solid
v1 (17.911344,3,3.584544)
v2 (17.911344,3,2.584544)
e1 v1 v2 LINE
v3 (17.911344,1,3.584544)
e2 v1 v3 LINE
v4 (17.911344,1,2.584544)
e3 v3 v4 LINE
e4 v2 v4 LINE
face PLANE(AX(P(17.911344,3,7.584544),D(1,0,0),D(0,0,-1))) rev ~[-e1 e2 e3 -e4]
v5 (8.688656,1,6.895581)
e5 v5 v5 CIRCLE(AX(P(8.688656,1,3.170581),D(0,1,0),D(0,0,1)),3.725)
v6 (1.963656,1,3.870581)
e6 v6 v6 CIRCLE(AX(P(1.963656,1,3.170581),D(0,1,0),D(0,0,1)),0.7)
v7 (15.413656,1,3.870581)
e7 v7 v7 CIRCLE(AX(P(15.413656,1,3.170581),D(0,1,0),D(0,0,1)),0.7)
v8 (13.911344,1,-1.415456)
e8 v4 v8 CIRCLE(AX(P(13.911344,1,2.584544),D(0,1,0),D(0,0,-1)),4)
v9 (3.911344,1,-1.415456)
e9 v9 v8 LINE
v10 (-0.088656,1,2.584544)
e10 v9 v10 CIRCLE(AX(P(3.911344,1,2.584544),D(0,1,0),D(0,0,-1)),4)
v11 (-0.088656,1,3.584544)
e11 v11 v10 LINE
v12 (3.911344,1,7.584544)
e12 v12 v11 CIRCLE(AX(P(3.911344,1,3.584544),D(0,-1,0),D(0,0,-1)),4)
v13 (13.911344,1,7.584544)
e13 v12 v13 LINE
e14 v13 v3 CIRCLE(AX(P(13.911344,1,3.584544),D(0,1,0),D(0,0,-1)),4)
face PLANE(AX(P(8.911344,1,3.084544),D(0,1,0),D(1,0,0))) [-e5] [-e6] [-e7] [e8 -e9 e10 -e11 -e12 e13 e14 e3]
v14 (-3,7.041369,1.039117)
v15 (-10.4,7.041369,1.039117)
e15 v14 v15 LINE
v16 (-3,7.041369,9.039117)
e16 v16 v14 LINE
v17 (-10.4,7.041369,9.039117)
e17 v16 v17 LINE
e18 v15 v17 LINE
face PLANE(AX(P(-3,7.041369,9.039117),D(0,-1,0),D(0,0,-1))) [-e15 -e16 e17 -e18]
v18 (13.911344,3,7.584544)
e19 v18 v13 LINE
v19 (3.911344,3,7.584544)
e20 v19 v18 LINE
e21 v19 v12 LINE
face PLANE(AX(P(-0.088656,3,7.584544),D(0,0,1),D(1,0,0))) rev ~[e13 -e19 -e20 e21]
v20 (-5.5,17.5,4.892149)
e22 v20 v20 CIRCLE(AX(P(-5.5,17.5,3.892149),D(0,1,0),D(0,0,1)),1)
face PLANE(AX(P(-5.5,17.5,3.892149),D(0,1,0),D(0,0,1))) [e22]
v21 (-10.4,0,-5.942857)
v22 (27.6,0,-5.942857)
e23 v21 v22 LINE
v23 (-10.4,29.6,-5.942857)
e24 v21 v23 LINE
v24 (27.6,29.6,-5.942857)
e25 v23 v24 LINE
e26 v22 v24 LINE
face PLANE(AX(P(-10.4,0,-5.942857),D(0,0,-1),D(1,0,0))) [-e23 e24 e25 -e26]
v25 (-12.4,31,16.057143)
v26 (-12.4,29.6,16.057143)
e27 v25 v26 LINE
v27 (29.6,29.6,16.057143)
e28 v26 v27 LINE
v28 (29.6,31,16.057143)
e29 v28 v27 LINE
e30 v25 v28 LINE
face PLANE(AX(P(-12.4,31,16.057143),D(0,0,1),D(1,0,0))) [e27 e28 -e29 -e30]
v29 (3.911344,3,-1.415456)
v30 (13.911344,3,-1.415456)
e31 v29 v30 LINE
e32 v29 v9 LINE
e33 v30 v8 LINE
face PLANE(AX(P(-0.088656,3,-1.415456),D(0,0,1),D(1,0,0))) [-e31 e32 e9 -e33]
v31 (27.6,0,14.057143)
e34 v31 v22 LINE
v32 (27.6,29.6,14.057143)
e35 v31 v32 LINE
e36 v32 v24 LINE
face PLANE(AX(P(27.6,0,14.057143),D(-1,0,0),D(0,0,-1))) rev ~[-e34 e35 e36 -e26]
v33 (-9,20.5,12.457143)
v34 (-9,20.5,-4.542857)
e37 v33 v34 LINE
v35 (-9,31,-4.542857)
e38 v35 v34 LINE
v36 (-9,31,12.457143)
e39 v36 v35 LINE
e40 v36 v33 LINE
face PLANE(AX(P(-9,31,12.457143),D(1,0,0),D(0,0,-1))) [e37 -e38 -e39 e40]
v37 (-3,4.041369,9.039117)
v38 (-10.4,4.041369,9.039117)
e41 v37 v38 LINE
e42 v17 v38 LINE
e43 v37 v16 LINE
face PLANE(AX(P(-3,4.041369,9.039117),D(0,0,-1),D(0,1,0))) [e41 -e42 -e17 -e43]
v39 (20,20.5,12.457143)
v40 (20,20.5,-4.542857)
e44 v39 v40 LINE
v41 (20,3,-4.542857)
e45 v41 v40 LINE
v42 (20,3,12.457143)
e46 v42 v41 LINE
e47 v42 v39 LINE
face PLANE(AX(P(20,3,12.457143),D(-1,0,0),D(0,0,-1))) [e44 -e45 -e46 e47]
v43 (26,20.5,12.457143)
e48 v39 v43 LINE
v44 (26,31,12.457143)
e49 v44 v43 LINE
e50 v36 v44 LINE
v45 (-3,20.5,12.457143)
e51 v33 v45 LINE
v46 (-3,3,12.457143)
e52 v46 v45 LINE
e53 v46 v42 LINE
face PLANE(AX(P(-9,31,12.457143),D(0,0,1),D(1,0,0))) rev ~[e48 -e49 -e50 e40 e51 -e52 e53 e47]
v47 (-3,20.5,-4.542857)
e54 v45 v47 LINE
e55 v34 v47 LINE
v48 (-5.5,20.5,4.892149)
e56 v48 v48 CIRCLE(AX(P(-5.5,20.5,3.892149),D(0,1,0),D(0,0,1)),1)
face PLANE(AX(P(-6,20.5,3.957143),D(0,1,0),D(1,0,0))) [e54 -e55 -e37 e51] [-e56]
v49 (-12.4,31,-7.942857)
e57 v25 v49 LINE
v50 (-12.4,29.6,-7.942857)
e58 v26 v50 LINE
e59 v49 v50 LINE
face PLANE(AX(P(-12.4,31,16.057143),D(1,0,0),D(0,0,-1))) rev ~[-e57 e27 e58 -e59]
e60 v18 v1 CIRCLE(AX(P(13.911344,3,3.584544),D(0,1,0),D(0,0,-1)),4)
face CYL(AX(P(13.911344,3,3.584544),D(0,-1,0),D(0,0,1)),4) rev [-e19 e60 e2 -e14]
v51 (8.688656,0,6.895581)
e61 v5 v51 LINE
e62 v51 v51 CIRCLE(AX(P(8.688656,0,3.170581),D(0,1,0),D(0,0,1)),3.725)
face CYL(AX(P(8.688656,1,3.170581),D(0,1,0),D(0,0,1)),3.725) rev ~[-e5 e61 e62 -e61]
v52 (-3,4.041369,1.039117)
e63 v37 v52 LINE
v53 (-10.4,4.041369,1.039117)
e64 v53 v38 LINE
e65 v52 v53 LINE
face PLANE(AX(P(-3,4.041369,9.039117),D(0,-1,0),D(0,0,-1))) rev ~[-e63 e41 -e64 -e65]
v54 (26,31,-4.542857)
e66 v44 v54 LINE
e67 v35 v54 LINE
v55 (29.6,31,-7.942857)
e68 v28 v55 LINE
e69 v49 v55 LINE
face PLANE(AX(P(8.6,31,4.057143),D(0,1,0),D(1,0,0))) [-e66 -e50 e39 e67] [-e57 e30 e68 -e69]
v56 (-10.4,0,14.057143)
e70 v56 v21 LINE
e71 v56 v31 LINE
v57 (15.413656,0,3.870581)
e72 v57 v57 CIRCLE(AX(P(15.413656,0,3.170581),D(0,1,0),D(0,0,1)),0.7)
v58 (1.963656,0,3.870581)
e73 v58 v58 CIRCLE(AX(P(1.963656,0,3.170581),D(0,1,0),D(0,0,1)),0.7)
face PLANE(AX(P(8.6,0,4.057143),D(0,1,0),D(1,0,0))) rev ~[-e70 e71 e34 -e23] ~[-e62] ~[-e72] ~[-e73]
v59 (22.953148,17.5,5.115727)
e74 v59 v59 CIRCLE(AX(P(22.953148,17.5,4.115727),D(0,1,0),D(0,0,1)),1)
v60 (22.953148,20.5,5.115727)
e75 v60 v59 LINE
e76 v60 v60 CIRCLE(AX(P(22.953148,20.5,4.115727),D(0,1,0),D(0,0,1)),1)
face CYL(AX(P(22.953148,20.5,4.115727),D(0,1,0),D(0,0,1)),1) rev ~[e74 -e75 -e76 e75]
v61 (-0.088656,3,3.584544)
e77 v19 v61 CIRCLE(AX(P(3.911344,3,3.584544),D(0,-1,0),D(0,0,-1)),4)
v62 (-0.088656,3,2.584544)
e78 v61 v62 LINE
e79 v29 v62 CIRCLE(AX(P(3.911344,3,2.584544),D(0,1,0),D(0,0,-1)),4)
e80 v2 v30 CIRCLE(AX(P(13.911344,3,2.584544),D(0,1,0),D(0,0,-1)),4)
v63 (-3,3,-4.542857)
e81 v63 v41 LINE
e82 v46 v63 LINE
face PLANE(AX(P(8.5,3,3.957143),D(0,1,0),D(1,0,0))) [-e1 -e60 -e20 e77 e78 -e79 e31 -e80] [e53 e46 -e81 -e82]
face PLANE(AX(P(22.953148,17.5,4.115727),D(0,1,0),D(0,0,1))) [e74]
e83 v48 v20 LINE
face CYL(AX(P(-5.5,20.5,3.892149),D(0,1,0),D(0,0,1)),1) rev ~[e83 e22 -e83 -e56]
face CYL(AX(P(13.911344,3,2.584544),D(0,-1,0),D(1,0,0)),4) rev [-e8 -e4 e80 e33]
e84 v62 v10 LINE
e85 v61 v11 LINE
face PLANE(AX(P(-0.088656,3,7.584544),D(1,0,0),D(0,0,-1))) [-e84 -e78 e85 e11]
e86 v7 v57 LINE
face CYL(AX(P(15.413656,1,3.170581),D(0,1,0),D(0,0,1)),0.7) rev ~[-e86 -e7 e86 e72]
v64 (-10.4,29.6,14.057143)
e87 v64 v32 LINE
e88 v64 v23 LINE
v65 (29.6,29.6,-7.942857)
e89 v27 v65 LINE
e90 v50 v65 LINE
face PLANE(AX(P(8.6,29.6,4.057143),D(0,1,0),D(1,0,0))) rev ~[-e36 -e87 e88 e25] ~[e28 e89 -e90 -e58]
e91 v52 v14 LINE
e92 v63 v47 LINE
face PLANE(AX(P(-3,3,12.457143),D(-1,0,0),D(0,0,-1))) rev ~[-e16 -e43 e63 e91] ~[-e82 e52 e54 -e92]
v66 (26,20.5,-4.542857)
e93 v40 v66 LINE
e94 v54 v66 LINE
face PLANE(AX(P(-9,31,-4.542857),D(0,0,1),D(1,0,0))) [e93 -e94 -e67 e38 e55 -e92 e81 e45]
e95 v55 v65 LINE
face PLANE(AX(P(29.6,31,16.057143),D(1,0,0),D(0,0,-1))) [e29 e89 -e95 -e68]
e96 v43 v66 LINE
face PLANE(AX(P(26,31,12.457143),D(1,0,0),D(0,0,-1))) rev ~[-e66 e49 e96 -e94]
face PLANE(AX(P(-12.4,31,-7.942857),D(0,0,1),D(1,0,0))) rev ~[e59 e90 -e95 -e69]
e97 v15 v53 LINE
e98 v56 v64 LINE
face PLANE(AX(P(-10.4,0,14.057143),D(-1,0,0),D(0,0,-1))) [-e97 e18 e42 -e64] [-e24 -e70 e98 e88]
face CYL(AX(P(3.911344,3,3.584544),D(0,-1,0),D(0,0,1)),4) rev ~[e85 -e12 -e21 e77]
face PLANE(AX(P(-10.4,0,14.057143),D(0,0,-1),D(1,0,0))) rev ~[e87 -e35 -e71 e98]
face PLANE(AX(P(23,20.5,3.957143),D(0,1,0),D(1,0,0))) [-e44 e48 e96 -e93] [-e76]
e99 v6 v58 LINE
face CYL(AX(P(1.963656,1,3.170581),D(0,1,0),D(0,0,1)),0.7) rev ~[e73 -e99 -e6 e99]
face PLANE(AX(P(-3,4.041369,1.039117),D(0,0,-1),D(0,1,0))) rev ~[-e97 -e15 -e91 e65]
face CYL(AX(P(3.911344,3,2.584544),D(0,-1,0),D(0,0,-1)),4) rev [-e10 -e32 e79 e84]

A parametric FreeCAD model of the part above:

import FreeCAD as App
import Part
import Sketcher
from FreeCAD import Vector
Q = App.Units.Quantity


def edges_at(feature, points):
    """Names of the edges that pass closest to the given points."""
    edges = feature.Shape.Edges
    near = lambda p: min(range(len(edges)), key=lambda i: edges[i].distToShape(Part.Vertex(*p))[0])
    return sorted({f"Edge{near(p) + 1}" for p in points})

doc = App.newDocument("Part")
body = doc.addObject("PartDesign::Body", "Body")

# Sketch on XZ plane
sketch1 = body.newObject("Sketcher::SketchObject", "Sketch")
sketch1.AttachmentSupport = (doc.getObject("XZ_Plane"), [""])
sketch1.MapMode = "FlatFace"
sketch1.addGeometry([
    Part.LineSegment(Vector(-10.4, -5.942857, 0), Vector(-10.4, 14.057143, 0)),
    Part.LineSegment(Vector(-10.4, 14.057143, 0), Vector(27.6, 14.057143, 0)),
    Part.LineSegment(Vector(27.6, 14.057143, 0), Vector(27.6, -5.942857, 0)),
    Part.LineSegment(Vector(27.6, -5.942857, 0), Vector(-10.4, -5.942857, 0)),
], False)
sketch1.addConstraint([
    Sketcher.Constraint("Coincident", 0, 2, 1, 1),
    Sketcher.Constraint("Coincident", 1, 2, 2, 1),
    Sketcher.Constraint("Coincident", 2, 2, 3, 1),
    Sketcher.Constraint("Coincident", 3, 2, 0, 1),
    Sketcher.Constraint("Vertical", 0),
    Sketcher.Constraint("Horizontal", 1),
    Sketcher.Constraint("Vertical", 2),
    Sketcher.Constraint("Horizontal", 3),
    Sketcher.Constraint("DistanceX", 1, 1, 1, 2, Q("38 mm")),
    Sketcher.Constraint("DistanceY", 0, 1, 0, 2, Q("20 mm")),
    Sketcher.Constraint("DistanceX", 0, 2, -1, 1, Q("10.4 mm")),
    Sketcher.Constraint("DistanceY", -1, 1, 0, 2, Q("14.057143 mm")),
])
pad1 = body.newObject("PartDesign::Pad", "Pad")
pad1.Profile = sketch1
pad1.Length = 31
pad1.Reversed = True

# Sketch on XZ plane
sketch2 = body.newObject("Sketcher::SketchObject", "Sketch001")
sketch2.AttachmentSupport = (doc.getObject("XZ_Plane"), [""])
sketch2.MapMode = "FlatFace"
sketch2.AttachmentOffset = App.Placement(Vector(0, 0, -31), App.Rotation())
sketch2.addGeometry([
    Part.LineSegment(Vector(-9, -4.542857, 0), Vector(-9, 12.457143, 0)),
    Part.LineSegment(Vector(-9, 12.457143, 0), Vector(26, 12.457143, 0)),
    Part.LineSegment(Vector(26, 12.457143, 0), Vector(26, -4.542857, 0)),
    Part.LineSegment(Vector(26, -4.542857, 0), Vector(-9, -4.542857, 0)),
], False)
sketch2.addConstraint([
    Sketcher.Constraint("Coincident", 0, 2, 1, 1),
    Sketcher.Constraint("Coincident", 1, 2, 2, 1),
    Sketcher.Constraint("Coincident", 2, 2, 3, 1),
    Sketcher.Constraint("Coincident", 3, 2, 0, 1),
    Sketcher.Constraint("Vertical", 0),
    Sketcher.Constraint("Horizontal", 1),
    Sketcher.Constraint("Vertical", 2),
    Sketcher.Constraint("Horizontal", 3),
    Sketcher.Constraint("DistanceX", 1, 1, 1, 2, Q("35 mm")),
    Sketcher.Constraint("DistanceY", 0, 1, 0, 2, Q("17 mm")),
    Sketcher.Constraint("DistanceX", 0, 2, -1, 1, Q("9 mm")),
    Sketcher.Constraint("DistanceY", -1, 1, 0, 2, Q("12.457143 mm")),
])
pocket1 = body.newObject("PartDesign::Pocket", "Pocket")
pocket1.Profile = sketch2
pocket1.Length = 28
pocket1.Reversed = True

# Sketch on XZ plane
sketch3 = body.newObject("Sketcher::SketchObject", "Sketch002")
sketch3.AttachmentSupport = (doc.getObject("XZ_Plane"), [""])
sketch3.MapMode = "FlatFace"
sketch3.AttachmentOffset = App.Placement(Vector(0, 0, -3), App.Rotation())
sketch3.addGeometry([
    Part.LineSegment(Vector(-9, -4.542857, 0), Vector(-9, 12.457143, 0)),  # 0
    Part.LineSegment(Vector(-9, 12.457143, 0), Vector(-3, 12.457143, 0)),  # 1
    Part.LineSegment(Vector(-3, 12.457143, 0), Vector(-3, -4.542857, 0)),  # 2
    Part.LineSegment(Vector(-3, -4.542857, 0), Vector(-9, -4.542857, 0)),  # 3
    Part.LineSegment(Vector(20, -4.542857, 0), Vector(20, 12.457143, 0)),  # 4
    Part.LineSegment(Vector(20, 12.457143, 0), Vector(26, 12.457143, 0)),  # 5
    Part.LineSegment(Vector(26, 12.457143, 0), Vector(26, -4.542857, 0)),  # 6
    Part.LineSegment(Vector(26, -4.542857, 0), Vector(20, -4.542857, 0)),  # 7
], False)
sketch3.addConstraint([
    Sketcher.Constraint("Coincident", 0, 2, 1, 1),
    Sketcher.Constraint("Coincident", 1, 2, 2, 1),
    Sketcher.Constraint("Coincident", 2, 2, 3, 1),
    Sketcher.Constraint("Coincident", 3, 2, 0, 1),
    Sketcher.Constraint("Coincident", 4, 2, 5, 1),
    Sketcher.Constraint("Coincident", 5, 2, 6, 1),
    Sketcher.Constraint("Coincident", 6, 2, 7, 1),
    Sketcher.Constraint("Coincident", 7, 2, 4, 1),
    Sketcher.Constraint("Vertical", 0),
    Sketcher.Constraint("Horizontal", 1),
    Sketcher.Constraint("Vertical", 2),
    Sketcher.Constraint("Horizontal", 3),
    Sketcher.Constraint("Vertical", 4),
    Sketcher.Constraint("Horizontal", 5),
    Sketcher.Constraint("Vertical", 6),
    Sketcher.Constraint("Horizontal", 7),
    Sketcher.Constraint("Horizontal", 1, 2, 4, 2),
    Sketcher.Constraint("Horizontal", 3, 2, 6, 2),
    Sketcher.Constraint("Equal", 3, 5),
    Sketcher.Constraint("DistanceX", 1, 1, 1, 2, Q("6 mm")),
    Sketcher.Constraint("DistanceY", 0, 1, 0, 2, Q("17 mm")),
    Sketcher.Constraint("DistanceX", 0, 2, -1, 1, Q("9 mm")),
    Sketcher.Constraint("DistanceX", -1, 1, 4, 2, Q("20 mm")),
    Sketcher.Constraint("DistanceY", -1, 1, 0, 2, Q("12.457143 mm")),
])
pad2 = body.newObject("PartDesign::Pad", "Pad001")
pad2.Profile = sketch3
pad2.Length = 17.5
pad2.Reversed = True

# Sketch on XZ plane
sketch4 = body.newObject("Sketcher::SketchObject", "Sketch003")
sketch4.AttachmentSupport = (doc.getObject("XZ_Plane"), [""])
sketch4.MapMode = "FlatFace"
sketch4.AttachmentOffset = App.Placement(Vector(0, 0, -31), App.Rotation())
sketch4.addGeometry([
    Part.LineSegment(Vector(-12.4, -7.942857, 0), Vector(-12.4, 16.057143, 0)),  # 0
    Part.LineSegment(Vector(-12.4, 16.057143, 0), Vector(29.6, 16.057143, 0)),  # 1
    Part.LineSegment(Vector(29.6, 16.057143, 0), Vector(29.6, -7.942857, 0)),  # 2
    Part.LineSegment(Vector(29.6, -7.942857, 0), Vector(-12.4, -7.942857, 0)),  # 3
    Part.LineSegment(Vector(27.6, 14.057143, 0), Vector(-10.4, 14.057143, 0)),  # 4
    Part.LineSegment(Vector(-10.4, 14.057143, 0), Vector(-10.4, -5.942857, 0)),  # 5
    Part.LineSegment(Vector(-10.4, -5.942857, 0), Vector(27.6, -5.942857, 0)),  # 6
    Part.LineSegment(Vector(27.6, -5.942857, 0), Vector(27.6, 14.057143, 0)),  # 7
], False)
sketch4.addConstraint([
    Sketcher.Constraint("Coincident", 0, 2, 1, 1),
    Sketcher.Constraint("Coincident", 1, 2, 2, 1),
    Sketcher.Constraint("Coincident", 2, 2, 3, 1),
    Sketcher.Constraint("Coincident", 3, 2, 0, 1),
    Sketcher.Constraint("Coincident", 4, 2, 5, 1),
    Sketcher.Constraint("Coincident", 5, 2, 6, 1),
    Sketcher.Constraint("Coincident", 6, 2, 7, 1),
    Sketcher.Constraint("Coincident", 7, 2, 4, 1),
    Sketcher.Constraint("Vertical", 0),
    Sketcher.Constraint("Horizontal", 1),
    Sketcher.Constraint("Vertical", 2),
    Sketcher.Constraint("Horizontal", 3),
    Sketcher.Constraint("Horizontal", 4),
    Sketcher.Constraint("Vertical", 5),
    Sketcher.Constraint("Horizontal", 6),
    Sketcher.Constraint("Vertical", 7),
    Sketcher.Constraint("DistanceX", 1, 1, 1, 2, Q("42 mm")),
    Sketcher.Constraint("DistanceX", 4, 2, 4, 1, Q("38 mm")),
    Sketcher.Constraint("DistanceY", 0, 1, 0, 2, Q("24 mm")),
    Sketcher.Constraint("DistanceY", 5, 2, 5, 1, Q("20 mm")),
    Sketcher.Constraint("DistanceX", 0, 2, 4, 2, Q("2 mm")),
    Sketcher.Constraint("DistanceY", 4, 2, 0, 2, Q("2 mm")),
    Sketcher.Constraint("DistanceX", 0, 2, -1, 1, Q("12.4 mm")),
    Sketcher.Constraint("DistanceY", -1, 1, 0, 2, Q("16.057143 mm")),
])
pad3 = body.newObject("PartDesign::Pad", "Pad002")
pad3.Profile = sketch4
pad3.Length = 1.4

# Sketch on XZ plane
sketch5 = body.newObject("Sketcher::SketchObject", "Sketch004")
sketch5.AttachmentSupport = (doc.getObject("XZ_Plane"), [""])
sketch5.MapMode = "FlatFace"
sketch5.AttachmentOffset = App.Placement(Vector(0, 0, -20.5), App.Rotation())
sketch5.addGeometry(Part.Circle(Vector(-5.5, 3.892149, 0), Vector(0, 0, 1), 1), False)
sketch5.addConstraint([
    Sketcher.Constraint("Diameter", 0, Q("2 mm")),
    Sketcher.Constraint("DistanceX", 0, 3, -1, 1, Q("5.5 mm")),
    Sketcher.Constraint("DistanceY", -1, 1, 0, 3, Q("3.892149 mm")),
])
pocket2 = body.newObject("PartDesign::Pocket", "Pocket001")
pocket2.Profile = sketch5
pocket2.Length = 3
pocket2.Reversed = True

# Sketch on XZ plane
sketch6 = body.newObject("Sketcher::SketchObject", "Sketch005")
sketch6.AttachmentSupport = (doc.getObject("XZ_Plane"), [""])
sketch6.MapMode = "FlatFace"
sketch6.AttachmentOffset = App.Placement(Vector(0, 0, -20.5), App.Rotation())
sketch6.addGeometry(Part.Circle(Vector(22.953148, 4.115727, 0), Vector(0, 0, 1), 1), False)
sketch6.addConstraint([
    Sketcher.Constraint("Diameter", 0, Q("2 mm")),
    Sketcher.Constraint("DistanceX", -1, 1, 0, 3, Q("22.953148 mm")),
    Sketcher.Constraint("DistanceY", -1, 1, 0, 3, Q("4.115727 mm")),
])
pocket3 = body.newObject("PartDesign::Pocket", "Pocket002")
pocket3.Profile = sketch6
pocket3.Length = 3
pocket3.Reversed = True

# Sketch on YZ plane
sketch7 = body.newObject("Sketcher::SketchObject", "Sketch006")
sketch7.AttachmentSupport = (doc.getObject("YZ_Plane"), [""])
sketch7.MapMode = "FlatFace"
sketch7.AttachmentOffset = App.Placement(Vector(0, 0, -3), App.Rotation())
sketch7.addGeometry([
    Part.LineSegment(Vector(7.041369, 9.039117, 0), Vector(4.041369, 9.039117, 0)),
    Part.LineSegment(Vector(4.041369, 9.039117, 0), Vector(4.041369, 1.039117, 0)),
    Part.LineSegment(Vector(4.041369, 1.039117, 0), Vector(7.041369, 1.039117, 0)),
    Part.LineSegment(Vector(7.041369, 1.039117, 0), Vector(7.041369, 9.039117, 0)),
], False)
sketch7.addConstraint([
    Sketcher.Constraint("Coincident", 0, 2, 1, 1),
    Sketcher.Constraint("Coincident", 1, 2, 2, 1),
    Sketcher.Constraint("Coincident", 2, 2, 3, 1),
    Sketcher.Constraint("Coincident", 3, 2, 0, 1),
    Sketcher.Constraint("Horizontal", 0),
    Sketcher.Constraint("Vertical", 1),
    Sketcher.Constraint("Horizontal", 2),
    Sketcher.Constraint("Vertical", 3),
    Sketcher.Constraint("DistanceX", 0, 2, 0, 1, Q("3 mm")),
    Sketcher.Constraint("DistanceY", 1, 2, 1, 1, Q("8 mm")),
    Sketcher.Constraint("DistanceX", -1, 1, 0, 2, Q("4.041369 mm")),
    Sketcher.Constraint("DistanceY", -1, 1, 0, 2, Q("9.039117 mm")),
])
pocket4 = body.newObject("PartDesign::Pocket", "Pocket003")
pocket4.Profile = sketch7
pocket4.Length = 10

# Sketch on XZ plane
sketch8 = body.newObject("Sketcher::SketchObject", "Sketch007")
sketch8.AttachmentSupport = (doc.getObject("XZ_Plane"), [""])
sketch8.MapMode = "FlatFace"
sketch8.AttachmentOffset = App.Placement(Vector(0, 0, -3), App.Rotation())
sketch8.addGeometry([
    Part.LineSegment(Vector(-0.088656, -1.415456, 0), Vector(-0.088656, 7.584544, 0)),
    Part.LineSegment(Vector(-0.088656, 7.584544, 0), Vector(17.911344, 7.584544, 0)),
    Part.LineSegment(Vector(17.911344, 7.584544, 0), Vector(17.911344, -1.415456, 0)),
    Part.LineSegment(Vector(17.911344, -1.415456, 0), Vector(-0.088656, -1.415456, 0)),
], False)
sketch8.addConstraint([
    Sketcher.Constraint("Coincident", 0, 2, 1, 1),
    Sketcher.Constraint("Coincident", 1, 2, 2, 1),
    Sketcher.Constraint("Coincident", 2, 2, 3, 1),
    Sketcher.Constraint("Coincident", 3, 2, 0, 1),
    Sketcher.Constraint("Vertical", 0),
    Sketcher.Constraint("Horizontal", 1),
    Sketcher.Constraint("Vertical", 2),
    Sketcher.Constraint("Horizontal", 3),
    Sketcher.Constraint("DistanceX", 1, 1, 1, 2, Q("18 mm")),
    Sketcher.Constraint("DistanceY", 0, 1, 0, 2, Q("9 mm")),
    Sketcher.Constraint("DistanceX", 0, 2, -1, 1, Q("0.088656 mm")),
    Sketcher.Constraint("DistanceY", -1, 1, 0, 2, Q("7.584544 mm")),
])
pocket5 = body.newObject("PartDesign::Pocket", "Pocket004")
pocket5.Profile = sketch8
pocket5.Length = 2
pocket5.Reversed = True

# Sketch on XZ plane
sketch9 = body.newObject("Sketcher::SketchObject", "Sketch008")
sketch9.AttachmentSupport = (doc.getObject("XZ_Plane"), [""])
sketch9.MapMode = "FlatFace"
sketch9.AttachmentOffset = App.Placement(Vector(0, 0, -1), App.Rotation())
sketch9.addGeometry([
    Part.Circle(Vector(8.688656, 3.170581, 0), Vector(0, 0, 1), 3.725),
    Part.Circle(Vector(1.963656, 3.170581, 0), Vector(0, 0, 1), 0.7),
    Part.Circle(Vector(15.413656, 3.170581, 0), Vector(0, 0, 1), 0.7),
], False)
sketch9.addConstraint([
    Sketcher.Constraint("Equal", 1, 2),
    Sketcher.Constraint("Horizontal", 0, 3, 1, 3),
    Sketcher.Constraint("Horizontal", 1, 3, 2, 3),
    Sketcher.Constraint("Diameter", 1, Q("1.4 mm")),
    Sketcher.Constraint("Diameter", 0, Q("7.45 mm")),
    Sketcher.Constraint("DistanceX", 1, 3, 2, 3, Q("13.45 mm")),
    Sketcher.Constraint("DistanceX", 1, 3, 0, 3, Q("6.725 mm")),
    Sketcher.Constraint("DistanceY", -1, 1, 0, 3, Q("3.170581 mm")),
    Sketcher.Constraint("DistanceX", -1, 1, 0, 3, Q("8.688656 mm")),
])
pocket6 = body.newObject("PartDesign::Pocket", "Pocket005")
pocket6.Profile = sketch9
pocket6.Length = 4
pocket6.Reversed = True
doc.recompute()

fillet = body.newObject("PartDesign::Fillet", "Fillet")
fillet.Base = (pocket6, edges_at(pocket6, [
    (-0.089, 2, 7.585),
    (-0.089, 2, -1.415),
    (17.911, 2, -1.415),
    (17.911, 2, 7.585),
]))
fillet.Radius = 4

doc.recompute()
